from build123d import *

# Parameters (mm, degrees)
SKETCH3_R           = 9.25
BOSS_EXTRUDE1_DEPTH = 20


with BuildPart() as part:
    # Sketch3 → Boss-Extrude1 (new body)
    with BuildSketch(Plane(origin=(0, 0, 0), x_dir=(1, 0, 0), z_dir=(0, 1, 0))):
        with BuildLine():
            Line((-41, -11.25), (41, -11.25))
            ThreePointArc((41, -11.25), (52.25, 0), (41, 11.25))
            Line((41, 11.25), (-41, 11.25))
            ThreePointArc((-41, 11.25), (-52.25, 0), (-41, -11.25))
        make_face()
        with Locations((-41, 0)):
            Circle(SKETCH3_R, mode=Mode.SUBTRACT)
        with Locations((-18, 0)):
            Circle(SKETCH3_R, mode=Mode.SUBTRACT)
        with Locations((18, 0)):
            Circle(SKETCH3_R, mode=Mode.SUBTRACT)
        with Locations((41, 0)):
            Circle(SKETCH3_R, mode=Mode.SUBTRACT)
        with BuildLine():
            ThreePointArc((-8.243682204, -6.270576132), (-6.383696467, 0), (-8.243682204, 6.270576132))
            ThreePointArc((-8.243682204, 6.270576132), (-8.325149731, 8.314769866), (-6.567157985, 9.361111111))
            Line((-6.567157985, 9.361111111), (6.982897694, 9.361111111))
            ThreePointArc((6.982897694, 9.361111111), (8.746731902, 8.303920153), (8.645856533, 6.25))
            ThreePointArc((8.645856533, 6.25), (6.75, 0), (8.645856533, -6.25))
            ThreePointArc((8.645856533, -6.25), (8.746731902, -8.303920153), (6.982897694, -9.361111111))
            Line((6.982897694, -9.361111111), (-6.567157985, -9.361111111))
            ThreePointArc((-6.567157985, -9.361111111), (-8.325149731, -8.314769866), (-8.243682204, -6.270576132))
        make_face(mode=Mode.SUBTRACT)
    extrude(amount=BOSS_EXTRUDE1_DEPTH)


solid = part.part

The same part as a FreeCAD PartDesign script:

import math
import FreeCAD as App
import Part
import Sketcher

doc = App.newDocument("Part")
params = doc.addObject("Spreadsheet::Sheet", "Params")
for row, (alias, value) in enumerate([
    ("sketch1_radius", "2 mm"),
    ("sketch1_diameter", "18.5 mm"),
    ("sketch1_radius2", "11.5 mm"),
    ("sketch1_width", "82 mm"),
    ("sketch1_radius3", "11.25 mm"),
    ("pad1_length", "20 mm"),
], start=1):
    params.set(f"A{row}", alias)
    params.set(f"B{row}", "=" + value)
    params.setAlias(f"B{row}", alias)

body = doc.addObject("PartDesign::Body", "Body")

sketch1 = body.newObject("Sketcher::SketchObject", "Sketch")
sketch1.AttachmentSupport = (doc.getObject("XZ_Plane"), [""])
sketch1.MapMode = "FlatFace"
sketch1.addGeometry([
    Part.LineSegment(App.Vector(-41, 11.2, 0), App.Vector(41, 11.2, 0)),
    Part.ArcOfCircle(Part.Circle(App.Vector(41, 0, 0), App.Vector(0, 0, 1), 11.2), math.radians(-90), math.radians(90)),
    Part.LineSegment(App.Vector(41, -11.2, 0), App.Vector(-41, -11.2, 0)),
    Part.ArcOfCircle(Part.Circle(App.Vector(-41, 0, 0), App.Vector(0, 0, 1), 11.2), math.radians(90), math.radians(270)),
    Part.Circle(App.Vector(-41, 0, 0), App.Vector(0, 0, 1), 9.2),
    Part.Circle(App.Vector(-18, 0, 0), App.Vector(0, 0, 1), 9.2),
    Part.ArcOfCircle(Part.Circle(App.Vector(-6.6, 7.4, 0), App.Vector(0, 0, 1), 2), math.radians(90), math.radians(213)),
    Part.ArcOfCircle(Part.Circle(App.Vector(-17.9, 0, 0), App.Vector(0, 0, 1), 11.5), math.radians(-33), math.radians(33)),
    Part.ArcOfCircle(Part.Circle(App.Vector(-6.6, -7.4, 0), App.Vector(0, 0, 1), 2), math.radians(147), math.radians(270)),
    Part.LineSegment(App.Vector(-6.6, -9.4, 0), App.Vector(7, -9.4, 0)),
    Part.ArcOfCircle(Part.Circle(App.Vector(7, -7.4, 0), App.Vector(0, 0, 1), 2), math.radians(-90), math.radians(34)),
    Part.ArcOfCircle(Part.Circle(App.Vector(18, 0, 0), App.Vector(0, 0, 1), 11.2), math.radians(146), math.radians(214)),
    Part.ArcOfCircle(Part.Circle(App.Vector(7, 7.4, 0), App.Vector(0, 0, 1), 2), math.radians(-34), math.radians(90)),
    Part.LineSegment(App.Vector(7, 9.4, 0), App.Vector(-6.6, 9.4, 0)),
    Part.Circle(App.Vector(18, 0, 0), App.Vector(0, 0, 1), 9.2),
    Part.Circle(App.Vector(41, 0, 0), App.Vector(0, 0, 1), 9.2),
], False)
sketch1.addConstraint([
    Sketcher.Constraint("Tangent", 0, 2, 1, 2),
    Sketcher.Constraint("Tangent", 1, 1, 2, 1),
    Sketcher.Constraint("Tangent", 2, 2, 3, 2),
    Sketcher.Constraint("Tangent", 3, 1, 0, 1),
    Sketcher.Constraint("Tangent", 6, 2, 7, 2),
    Sketcher.Constraint("Tangent", 7, 1, 8, 1),
    Sketcher.Constraint("Tangent", 8, 2, 9, 1),
    Sketcher.Constraint("Tangent", 9, 2, 10, 1),
    Sketcher.Constraint("Tangent", 10, 2, 11, 2),
    Sketcher.Constraint("Tangent", 11, 1, 12, 1),
    Sketcher.Constraint("Tangent", 12, 2, 13, 1),
    Sketcher.Constraint("Tangent", 13, 2, 6, 1),
    Sketcher.Constraint("Horizontal", 0),
    Sketcher.Constraint("Horizontal", 2),
    Sketcher.Constraint("Horizontal", 9),
    Sketcher.Constraint("Horizontal", 13),
    Sketcher.Constraint("Coincident", 4, 3, 3, 3),
    Sketcher.Constraint("Coincident", 14, 3, 11, 3),
    Sketcher.Constraint("Coincident", 15, 3, 1, 3),
    Sketcher.Constraint("Equal", 4, 5),
    Sketcher.Constraint("Equal", 6, 8),
    Sketcher.Constraint("Equal", 8, 10),
    Sketcher.Constraint("Equal", 3, 11),
    Sketcher.Constraint("Equal", 10, 12),
    Sketcher.Constraint("Equal", 5, 14),
    Sketcher.Constraint("Equal", 14, 15),
    Sketcher.Constraint("Symmetric", 1, 3, 3, 3, -1, 1),
    Sketcher.Constraint("Symmetric", 5, 3, 11, 3, -1, 1),
    Sketcher.Constraint("Symmetric", 6, 3, 8, 3, -1),
    Sketcher.Constraint("PointOnObject", 5, 3, -1),
    Sketcher.Constraint("Radius", 6, 2.0),
    Sketcher.Constraint("Diameter", 4, 18.5),
    Sketcher.Constraint("Radius", 7, 11.5),
    Sketcher.Constraint("DistanceX", 0, 1, 0, 2, 82.0),
    Sketcher.Constraint("Radius", 1, 11.25),
    Sketcher.Constraint("DistanceX", 5, 3, -1, 1, 18.0),
    Sketcher.Constraint("DistanceY", 10, 2, 11, 1, 12.5),
    Sketcher.Constraint("DistanceX", 9, 1, 9, 2, 13.550056),
])
sketch1.setExpression("Constraints[30]", "Params.sketch1_radius")
sketch1.setExpression("Constraints[31]", "Params.sketch1_diameter")
sketch1.setExpression("Constraints[32]", "Params.sketch1_radius2")
sketch1.setExpression("Constraints[33]", "Params.sketch1_width")
sketch1.setExpression("Constraints[34]", "Params.sketch1_radius3")
pad1 = body.newObject("PartDesign::Pad", "Pad")
pad1.Profile = sketch1
pad1.setExpression("Length", "Params.pad1_length")
pad1.Reversed = True

doc.recompute()
